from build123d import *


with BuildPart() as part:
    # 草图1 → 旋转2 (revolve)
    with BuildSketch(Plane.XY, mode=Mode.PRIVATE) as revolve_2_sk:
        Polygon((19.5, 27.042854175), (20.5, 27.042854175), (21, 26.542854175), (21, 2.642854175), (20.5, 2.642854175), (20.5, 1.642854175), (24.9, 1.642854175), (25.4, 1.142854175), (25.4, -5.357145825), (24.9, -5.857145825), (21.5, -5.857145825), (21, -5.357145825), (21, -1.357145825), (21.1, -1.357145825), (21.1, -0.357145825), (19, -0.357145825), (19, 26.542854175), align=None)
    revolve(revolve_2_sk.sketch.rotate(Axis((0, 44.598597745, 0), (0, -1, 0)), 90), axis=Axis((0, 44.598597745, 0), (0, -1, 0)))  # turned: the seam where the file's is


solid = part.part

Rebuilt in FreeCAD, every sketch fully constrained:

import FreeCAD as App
import Part
import Sketcher
Q = App.Units.Quantity


def add_polygon(sketch, points):
    """Adds a closed chain of lines whose ends are joined by coincident constraints."""
    first, n = sketch.GeometryCount, len(points)
    for a, b in zip(points, points[1:] + points[:1]):
        sketch.addGeometry(Part.LineSegment(App.Vector(*a, 0), App.Vector(*b, 0)), False)
    for i in range(n):
        sketch.addConstraint(Sketcher.Constraint("Coincident", first + i, 2, first + (i + 1) % n, 1))

doc = App.newDocument("Part")
body = doc.addObject("PartDesign::Body", "Body")

# Sketch on XY plane
sketch1 = doc.addObject("Sketcher::SketchObject", "Sketch")
body.addObject(sketch1)
sketch1.AttachmentSupport = (doc.XY_Plane, [""])
sketch1.MapMode = "FlatFace"
add_polygon(sketch1, [(20.5, 27.04), (19.5, 27.04), (19, 26.54), (19, -0.36), (21.1, -0.36), (21.1, -1.36), (21, -1.36), (21, -5.36), (21.5, -5.86), (24.9, -5.86), (25.4, -5.36), (25.4, 1.14), (24.9, 1.64), (20.5, 1.64), (20.5, 2.64), (21, 2.64), (21, 26.54)])  # lines 0-16
sketch1.addConstraint([
    Sketcher.Constraint("Horizontal", 0),
    Sketcher.Constraint("Vertical", 2),
    Sketcher.Constraint("Horizontal", 3),
    Sketcher.Constraint("Vertical", 4),
    Sketcher.Constraint("Horizontal", 5),
    Sketcher.Constraint("Vertical", 6),
    Sketcher.Constraint("Horizontal", 8),
    Sketcher.Constraint("Vertical", 10),
    Sketcher.Constraint("Horizontal", 12),
    Sketcher.Constraint("Vertical", 13),
    Sketcher.Constraint("Horizontal", 14),
    Sketcher.Constraint("Vertical", 15),
    Sketcher.Constraint("Perpendicular", 1, 7),
    Sketcher.Constraint("Perpendicular", 7, 9),
    Sketcher.Constraint("Perpendicular", 9, 11),
    Sketcher.Constraint("Parallel", 11, 16),
    Sketcher.Constraint("Horizontal", 6, 2, 9, 2),
    Sketcher.Constraint("Horizontal", 1, 2, 15, 2),
    Sketcher.Constraint("Vertical", 8, 2, 11, 2),
    Sketcher.Constraint("Vertical", 6, 2, 14, 2),
    Sketcher.Constraint("Vertical", 13, 2, 16, 2),
    Sketcher.Constraint("Equal", 0, 4),
    Sketcher.Constraint("Equal", 4, 13),
    Sketcher.Constraint("Equal", 1, 7),
    Sketcher.Constraint("Equal", 7, 9),
    Sketcher.Constraint("DistanceX", 0, 2, 0, 1, Q("1 mm")),
    Sketcher.Constraint("DistanceY", 6, 2, 6, 1, Q("4 mm")),
    Sketcher.Constraint("DistanceX", 3, 1, 3, 2, Q("2.1 mm")),
    Sketcher.Constraint("DistanceX", 5, 2, 5, 1, Q("0.1 mm")),
    Sketcher.Constraint("DistanceX", 8, 1, 8, 2, Q("3.4 mm")),
    Sketcher.Constraint("DistanceY", 2, 2, 2, 1, Q("26.9 mm")),
    Sketcher.Constraint("DistanceY", 10, 1, 10, 2, Q("6.5 mm")),
    Sketcher.Constraint("DistanceX", -1, 1, 1, 2, Q("19 mm")),
    Sketcher.Constraint("DistanceY", -1, 1, 0, 2, Q("27.042854 mm")),
])
revolution = doc.addObject("PartDesign::Revolution", "Revolution")
body.addObject(revolution)
revolution.Profile = sketch1
revolution.ReferenceAxis = (sketch1, ["V_Axis"])
revolution.Angle = 360

doc.recompute()
